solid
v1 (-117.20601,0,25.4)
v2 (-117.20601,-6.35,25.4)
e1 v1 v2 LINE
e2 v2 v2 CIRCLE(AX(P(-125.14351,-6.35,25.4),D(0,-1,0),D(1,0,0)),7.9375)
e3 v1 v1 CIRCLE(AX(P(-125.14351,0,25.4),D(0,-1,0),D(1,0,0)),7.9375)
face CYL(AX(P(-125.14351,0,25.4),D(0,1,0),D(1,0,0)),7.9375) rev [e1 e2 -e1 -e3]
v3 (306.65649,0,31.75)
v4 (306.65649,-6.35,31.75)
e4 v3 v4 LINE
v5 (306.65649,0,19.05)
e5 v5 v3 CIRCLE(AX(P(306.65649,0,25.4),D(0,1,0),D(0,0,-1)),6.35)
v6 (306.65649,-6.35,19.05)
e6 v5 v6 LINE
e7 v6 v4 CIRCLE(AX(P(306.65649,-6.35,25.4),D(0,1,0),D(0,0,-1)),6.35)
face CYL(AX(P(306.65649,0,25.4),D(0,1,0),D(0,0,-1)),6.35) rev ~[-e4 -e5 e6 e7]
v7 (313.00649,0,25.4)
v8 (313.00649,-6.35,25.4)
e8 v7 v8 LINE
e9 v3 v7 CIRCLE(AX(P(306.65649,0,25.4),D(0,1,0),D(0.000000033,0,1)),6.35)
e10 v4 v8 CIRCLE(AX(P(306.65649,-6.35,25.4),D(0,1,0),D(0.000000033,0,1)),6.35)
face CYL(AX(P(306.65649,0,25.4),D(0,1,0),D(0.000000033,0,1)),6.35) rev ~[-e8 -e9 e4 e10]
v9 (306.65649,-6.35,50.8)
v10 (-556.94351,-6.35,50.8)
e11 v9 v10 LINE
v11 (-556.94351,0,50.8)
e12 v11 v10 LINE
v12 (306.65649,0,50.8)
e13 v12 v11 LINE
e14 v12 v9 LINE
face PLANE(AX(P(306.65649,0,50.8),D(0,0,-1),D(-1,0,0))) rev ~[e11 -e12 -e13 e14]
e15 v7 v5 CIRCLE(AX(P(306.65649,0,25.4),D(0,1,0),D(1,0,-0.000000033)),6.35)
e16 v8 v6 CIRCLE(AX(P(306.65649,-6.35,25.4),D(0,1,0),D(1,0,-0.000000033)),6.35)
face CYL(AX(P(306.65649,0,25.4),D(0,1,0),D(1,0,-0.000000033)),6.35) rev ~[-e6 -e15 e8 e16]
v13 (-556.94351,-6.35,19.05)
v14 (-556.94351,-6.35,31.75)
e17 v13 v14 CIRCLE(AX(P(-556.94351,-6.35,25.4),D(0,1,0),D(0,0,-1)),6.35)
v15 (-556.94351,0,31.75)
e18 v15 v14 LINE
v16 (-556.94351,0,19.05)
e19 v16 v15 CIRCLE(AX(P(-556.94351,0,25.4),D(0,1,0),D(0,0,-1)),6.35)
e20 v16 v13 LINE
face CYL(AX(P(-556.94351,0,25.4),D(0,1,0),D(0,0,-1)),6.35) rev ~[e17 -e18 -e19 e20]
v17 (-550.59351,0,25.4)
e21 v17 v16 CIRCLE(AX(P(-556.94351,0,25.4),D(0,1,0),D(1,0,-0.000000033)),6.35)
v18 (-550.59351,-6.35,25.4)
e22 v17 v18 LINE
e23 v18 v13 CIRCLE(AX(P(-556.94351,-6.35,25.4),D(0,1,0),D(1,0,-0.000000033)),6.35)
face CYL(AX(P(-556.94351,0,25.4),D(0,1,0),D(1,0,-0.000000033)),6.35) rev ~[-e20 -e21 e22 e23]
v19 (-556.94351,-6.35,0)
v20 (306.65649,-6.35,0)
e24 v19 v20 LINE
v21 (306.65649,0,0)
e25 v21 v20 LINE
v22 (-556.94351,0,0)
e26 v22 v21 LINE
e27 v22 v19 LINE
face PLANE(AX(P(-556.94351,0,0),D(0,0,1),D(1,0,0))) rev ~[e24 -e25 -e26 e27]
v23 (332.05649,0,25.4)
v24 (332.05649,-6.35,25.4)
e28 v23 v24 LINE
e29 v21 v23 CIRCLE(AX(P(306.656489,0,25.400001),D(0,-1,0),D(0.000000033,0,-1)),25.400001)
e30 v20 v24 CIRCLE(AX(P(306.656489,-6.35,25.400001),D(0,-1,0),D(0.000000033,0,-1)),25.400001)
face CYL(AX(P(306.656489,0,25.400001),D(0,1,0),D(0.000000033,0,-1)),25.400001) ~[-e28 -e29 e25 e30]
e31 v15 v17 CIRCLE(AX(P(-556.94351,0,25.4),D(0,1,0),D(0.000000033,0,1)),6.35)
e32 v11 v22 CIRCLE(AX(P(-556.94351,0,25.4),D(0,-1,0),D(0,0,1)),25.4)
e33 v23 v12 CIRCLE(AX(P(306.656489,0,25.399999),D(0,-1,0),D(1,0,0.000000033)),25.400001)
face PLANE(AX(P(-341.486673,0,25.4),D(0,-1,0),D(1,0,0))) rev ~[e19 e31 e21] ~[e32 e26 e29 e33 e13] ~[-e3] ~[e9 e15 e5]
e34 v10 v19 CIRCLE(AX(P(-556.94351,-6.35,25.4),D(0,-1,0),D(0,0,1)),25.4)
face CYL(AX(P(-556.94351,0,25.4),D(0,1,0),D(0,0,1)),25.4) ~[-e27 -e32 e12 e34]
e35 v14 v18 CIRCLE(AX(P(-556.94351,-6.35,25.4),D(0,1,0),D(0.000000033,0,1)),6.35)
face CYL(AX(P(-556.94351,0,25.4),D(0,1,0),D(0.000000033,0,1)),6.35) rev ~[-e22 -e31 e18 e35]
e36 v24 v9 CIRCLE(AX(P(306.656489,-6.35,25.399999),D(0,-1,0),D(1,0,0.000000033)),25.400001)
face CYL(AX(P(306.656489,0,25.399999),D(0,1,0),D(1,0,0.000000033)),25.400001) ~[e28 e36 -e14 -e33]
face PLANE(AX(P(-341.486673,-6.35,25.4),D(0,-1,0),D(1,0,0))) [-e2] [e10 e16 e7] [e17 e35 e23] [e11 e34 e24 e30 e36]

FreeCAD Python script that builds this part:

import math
import FreeCAD as App
import Part
import Sketcher
Q = App.Units.Quantity

doc = App.newDocument("Part")
body = doc.addObject("PartDesign::Body", "Body")

# Sketch on XZ plane
sketch1 = doc.addObject("Sketcher::SketchObject", "Sketch")
body.addObject(sketch1)
sketch1.AttachmentSupport = (doc.XZ_Plane, [""])
sketch1.MapMode = "FlatFace"
sketch1.addGeometry([
    Part.ArcOfCircle(Part.Circle(App.Vector(-557, 25, 0), App.Vector(0, 0, 1), 25), math.radians(90), math.radians(270)),  # 0
    Part.LineSegment(App.Vector(-557, 0, 0), App.Vector(307, 0, 0)),  # 1
    Part.ArcOfCircle(Part.Circle(App.Vector(307, 25, 0), App.Vector(0, 0, 1), 25), math.radians(-90), math.radians(0)),  # 2
    Part.ArcOfCircle(Part.Circle(App.Vector(307, 25, 0), App.Vector(0, 0, 1), 25), math.radians(0), math.radians(90)),  # 3
    Part.LineSegment(App.Vector(307, 51, 0), App.Vector(-557, 51, 0)),  # 4
    Part.ArcOfCircle(Part.Circle(App.Vector(-557, 25, 0), App.Vector(0, 0, 1), 6), math.radians(0), math.radians(90)),  # 5
    Part.ArcOfCircle(Part.Circle(App.Vector(-557, 25, 0), App.Vector(0, 0, 1), 6), math.radians(-90), math.radians(0)),  # 6
    Part.ArcOfCircle(Part.Circle(App.Vector(-557, 25, 0), App.Vector(0, 0, 1), 6), math.radians(90), math.radians(270)),  # 7
    Part.Circle(App.Vector(-125, 25, 0), App.Vector(0, 0, 1), 8),  # 8
    Part.ArcOfCircle(Part.Circle(App.Vector(307, 25, 0), App.Vector(0, 0, 1), 6), math.radians(-90), math.radians(0)),  # 9
    Part.ArcOfCircle(Part.Circle(App.Vector(307, 25, 0), App.Vector(0, 0, 1), 6), math.radians(90), math.radians(270)),  # 10
    Part.ArcOfCircle(Part.Circle(App.Vector(307, 25, 0), App.Vector(0, 0, 1), 6), math.radians(0), math.radians(90)),  # 11
], False)
sketch1.addConstraint([
    Sketcher.Constraint("Tangent", 0, 2, 1, 1),
    Sketcher.Constraint("Tangent", 1, 2, 2, 1),
    Sketcher.Constraint("Tangent", 2, 2, 3, 1),
    Sketcher.Constraint("Tangent", 3, 2, 4, 1),
    Sketcher.Constraint("Tangent", 4, 2, 0, 1),
    Sketcher.Constraint("Tangent", 5, 1, 6, 2),
    Sketcher.Constraint("Tangent", 6, 1, 7, 2),
    Sketcher.Constraint("Tangent", 7, 1, 5, 2),
    Sketcher.Constraint("Tangent", 9, 1, 10, 2),
    Sketcher.Constraint("Tangent", 10, 1, 11, 2),
    Sketcher.Constraint("Tangent", 11, 1, 9, 2),
    Sketcher.Constraint("Horizontal", 1),
    Sketcher.Constraint("Horizontal", 4),
    Sketcher.Constraint("Coincident", 5, 3, 0, 3),
    Sketcher.Constraint("Coincident", 9, 3, 2, 3),
    Sketcher.Constraint("Equal", 0, 2),
    Sketcher.Constraint("Equal", 7, 9),
    Sketcher.Constraint("PointOnObject", 0, 2, -1),
    Sketcher.Constraint("Horizontal", 7, 3, 8, 3),
    Sketcher.Constraint("Horizontal", 11, 3, 2, 2),
    Sketcher.Constraint("Horizontal", 2, 2, 5, 1),
    Sketcher.Constraint("Horizontal", 5, 1, 11, 1),
    Sketcher.Constraint("Vertical", 4, 2, 6, 1),
    Sketcher.Constraint("Vertical", 6, 1, 7, 1),
    Sketcher.Constraint("Vertical", 3, 2, 9, 1),
    Sketcher.Constraint("Vertical", 9, 1, 10, 1),
    Sketcher.Constraint("Radius", 0, Q("1 in")),
    Sketcher.Constraint("DistanceX", 1, 1, 1, 2, Q("34 in")),
    Sketcher.Constraint("Radius", 5, Q("0.25 in")),
    Sketcher.Constraint("Diameter", 8, Q("0.625 in")),
    Sketcher.Constraint("DistanceX", 8, 3, 2, 3, Q("17 in")),
    Sketcher.Constraint("DistanceX", 0, 3, -1, 1, 556.94351),
])
pad1 = doc.addObject("PartDesign::Pad", "Pad")
body.addObject(pad1)
pad1.Profile = sketch1
pad1.Length = Q("0.25 in")

doc.recompute()
